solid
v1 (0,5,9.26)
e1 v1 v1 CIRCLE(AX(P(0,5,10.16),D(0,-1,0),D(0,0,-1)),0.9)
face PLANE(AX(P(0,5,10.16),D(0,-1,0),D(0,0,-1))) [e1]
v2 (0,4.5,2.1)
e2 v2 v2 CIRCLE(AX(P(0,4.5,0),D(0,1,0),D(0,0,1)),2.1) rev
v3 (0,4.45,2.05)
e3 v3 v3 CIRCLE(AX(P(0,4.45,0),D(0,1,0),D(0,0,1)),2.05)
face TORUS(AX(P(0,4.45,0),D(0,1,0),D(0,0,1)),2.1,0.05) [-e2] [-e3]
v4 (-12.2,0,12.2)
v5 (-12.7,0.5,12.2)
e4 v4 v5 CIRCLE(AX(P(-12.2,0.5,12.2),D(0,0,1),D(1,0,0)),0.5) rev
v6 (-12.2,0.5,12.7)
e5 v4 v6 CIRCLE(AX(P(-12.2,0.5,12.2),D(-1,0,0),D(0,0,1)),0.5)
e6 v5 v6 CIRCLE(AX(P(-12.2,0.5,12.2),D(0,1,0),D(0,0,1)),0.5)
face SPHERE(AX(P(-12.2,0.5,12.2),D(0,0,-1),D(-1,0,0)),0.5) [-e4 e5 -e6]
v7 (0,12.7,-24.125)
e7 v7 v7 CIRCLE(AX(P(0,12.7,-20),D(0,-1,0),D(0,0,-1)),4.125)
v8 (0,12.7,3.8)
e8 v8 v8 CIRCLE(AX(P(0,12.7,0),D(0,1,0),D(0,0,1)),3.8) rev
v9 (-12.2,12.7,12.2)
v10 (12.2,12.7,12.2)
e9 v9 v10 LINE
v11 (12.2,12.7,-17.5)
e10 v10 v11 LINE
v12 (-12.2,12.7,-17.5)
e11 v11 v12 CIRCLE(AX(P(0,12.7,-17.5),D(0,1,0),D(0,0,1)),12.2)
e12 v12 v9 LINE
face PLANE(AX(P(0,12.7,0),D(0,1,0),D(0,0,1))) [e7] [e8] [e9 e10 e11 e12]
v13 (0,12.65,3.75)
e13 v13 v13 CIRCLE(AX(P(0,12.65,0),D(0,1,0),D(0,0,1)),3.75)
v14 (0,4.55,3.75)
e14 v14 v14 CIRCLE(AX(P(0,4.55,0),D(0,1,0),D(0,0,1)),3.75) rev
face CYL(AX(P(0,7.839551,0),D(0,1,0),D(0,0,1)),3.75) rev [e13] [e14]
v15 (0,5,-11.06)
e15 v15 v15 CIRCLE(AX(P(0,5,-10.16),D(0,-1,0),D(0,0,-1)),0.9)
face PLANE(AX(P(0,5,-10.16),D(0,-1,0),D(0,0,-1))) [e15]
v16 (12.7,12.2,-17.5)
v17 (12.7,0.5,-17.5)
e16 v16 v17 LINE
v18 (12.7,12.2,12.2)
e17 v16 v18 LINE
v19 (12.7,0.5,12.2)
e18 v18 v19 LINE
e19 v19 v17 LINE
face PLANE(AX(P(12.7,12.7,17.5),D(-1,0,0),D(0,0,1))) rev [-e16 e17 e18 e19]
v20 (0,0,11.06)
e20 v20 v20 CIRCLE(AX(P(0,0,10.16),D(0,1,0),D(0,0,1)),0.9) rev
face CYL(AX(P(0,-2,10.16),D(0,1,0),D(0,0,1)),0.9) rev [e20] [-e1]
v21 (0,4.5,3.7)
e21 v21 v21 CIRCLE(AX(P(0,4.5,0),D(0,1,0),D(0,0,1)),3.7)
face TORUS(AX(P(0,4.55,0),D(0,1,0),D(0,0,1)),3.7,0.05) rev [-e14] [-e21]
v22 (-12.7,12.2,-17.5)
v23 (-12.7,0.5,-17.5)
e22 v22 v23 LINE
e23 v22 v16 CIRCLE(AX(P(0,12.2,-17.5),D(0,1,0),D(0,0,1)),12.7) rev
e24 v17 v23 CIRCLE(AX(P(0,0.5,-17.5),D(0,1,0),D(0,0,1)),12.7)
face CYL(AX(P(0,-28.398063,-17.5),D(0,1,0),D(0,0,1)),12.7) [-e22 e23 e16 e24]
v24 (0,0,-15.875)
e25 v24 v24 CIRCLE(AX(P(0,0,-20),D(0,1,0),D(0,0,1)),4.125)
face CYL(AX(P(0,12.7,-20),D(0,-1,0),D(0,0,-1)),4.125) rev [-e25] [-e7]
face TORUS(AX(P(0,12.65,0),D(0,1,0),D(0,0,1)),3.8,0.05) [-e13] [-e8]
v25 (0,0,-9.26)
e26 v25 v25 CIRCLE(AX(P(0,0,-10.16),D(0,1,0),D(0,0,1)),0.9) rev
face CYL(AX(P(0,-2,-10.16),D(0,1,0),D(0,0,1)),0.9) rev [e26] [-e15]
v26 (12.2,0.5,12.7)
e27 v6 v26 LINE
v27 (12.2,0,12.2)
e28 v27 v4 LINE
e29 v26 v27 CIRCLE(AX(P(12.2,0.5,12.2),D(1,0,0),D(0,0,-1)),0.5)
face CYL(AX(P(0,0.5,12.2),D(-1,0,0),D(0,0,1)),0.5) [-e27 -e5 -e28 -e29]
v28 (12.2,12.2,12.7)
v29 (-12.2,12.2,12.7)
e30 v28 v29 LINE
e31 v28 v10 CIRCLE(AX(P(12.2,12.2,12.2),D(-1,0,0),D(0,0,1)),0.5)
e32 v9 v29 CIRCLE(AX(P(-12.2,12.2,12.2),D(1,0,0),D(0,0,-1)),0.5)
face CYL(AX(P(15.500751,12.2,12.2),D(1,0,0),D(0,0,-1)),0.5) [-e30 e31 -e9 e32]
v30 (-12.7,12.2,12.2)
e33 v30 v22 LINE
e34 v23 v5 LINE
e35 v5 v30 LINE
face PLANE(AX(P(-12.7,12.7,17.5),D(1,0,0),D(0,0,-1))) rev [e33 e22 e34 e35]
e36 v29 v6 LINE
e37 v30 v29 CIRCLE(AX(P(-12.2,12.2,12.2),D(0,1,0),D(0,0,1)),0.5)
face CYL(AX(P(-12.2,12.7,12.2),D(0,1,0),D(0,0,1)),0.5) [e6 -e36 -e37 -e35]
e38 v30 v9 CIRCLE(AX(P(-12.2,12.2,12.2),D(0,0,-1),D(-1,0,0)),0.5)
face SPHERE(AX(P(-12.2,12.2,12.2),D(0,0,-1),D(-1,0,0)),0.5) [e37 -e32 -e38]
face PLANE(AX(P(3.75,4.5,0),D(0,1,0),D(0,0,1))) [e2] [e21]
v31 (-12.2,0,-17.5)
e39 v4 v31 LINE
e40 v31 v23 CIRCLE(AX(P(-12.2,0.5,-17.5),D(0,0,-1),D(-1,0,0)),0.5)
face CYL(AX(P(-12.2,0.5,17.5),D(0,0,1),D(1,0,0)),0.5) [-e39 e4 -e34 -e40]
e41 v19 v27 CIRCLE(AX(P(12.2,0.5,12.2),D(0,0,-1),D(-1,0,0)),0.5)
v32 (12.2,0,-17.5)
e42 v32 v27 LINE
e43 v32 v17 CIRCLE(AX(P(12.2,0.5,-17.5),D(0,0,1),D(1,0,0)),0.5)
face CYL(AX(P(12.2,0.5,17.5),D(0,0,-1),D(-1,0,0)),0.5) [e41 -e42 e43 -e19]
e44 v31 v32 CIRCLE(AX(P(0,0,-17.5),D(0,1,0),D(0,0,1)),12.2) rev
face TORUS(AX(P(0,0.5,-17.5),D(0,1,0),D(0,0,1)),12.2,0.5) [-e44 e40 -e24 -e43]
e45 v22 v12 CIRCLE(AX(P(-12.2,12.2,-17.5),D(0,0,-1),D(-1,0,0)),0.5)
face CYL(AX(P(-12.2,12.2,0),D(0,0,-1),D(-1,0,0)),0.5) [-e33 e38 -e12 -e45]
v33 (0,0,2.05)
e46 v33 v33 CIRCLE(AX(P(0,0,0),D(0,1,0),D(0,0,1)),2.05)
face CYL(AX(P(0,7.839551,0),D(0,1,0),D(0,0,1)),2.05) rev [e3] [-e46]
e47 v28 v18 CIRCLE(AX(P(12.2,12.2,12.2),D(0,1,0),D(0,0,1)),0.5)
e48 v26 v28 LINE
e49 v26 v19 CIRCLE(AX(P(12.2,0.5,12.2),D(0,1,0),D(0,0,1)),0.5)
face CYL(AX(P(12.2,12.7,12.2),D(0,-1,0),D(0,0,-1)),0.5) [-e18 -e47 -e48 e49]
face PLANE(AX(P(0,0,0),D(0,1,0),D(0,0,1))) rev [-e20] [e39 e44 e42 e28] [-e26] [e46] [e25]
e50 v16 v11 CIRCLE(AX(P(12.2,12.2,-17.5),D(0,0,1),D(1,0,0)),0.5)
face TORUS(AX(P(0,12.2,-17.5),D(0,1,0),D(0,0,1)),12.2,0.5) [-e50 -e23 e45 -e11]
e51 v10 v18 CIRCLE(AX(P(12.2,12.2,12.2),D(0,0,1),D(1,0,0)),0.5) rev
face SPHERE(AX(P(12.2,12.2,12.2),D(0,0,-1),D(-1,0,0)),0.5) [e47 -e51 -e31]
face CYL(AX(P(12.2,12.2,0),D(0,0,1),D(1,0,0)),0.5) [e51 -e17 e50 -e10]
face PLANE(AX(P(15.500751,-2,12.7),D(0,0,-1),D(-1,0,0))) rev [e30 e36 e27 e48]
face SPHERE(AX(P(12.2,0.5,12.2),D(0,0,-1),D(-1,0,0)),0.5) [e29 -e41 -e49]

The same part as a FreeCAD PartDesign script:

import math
import FreeCAD as App
import Part
import Sketcher


def edges_at(feature, points):
    """Names of the edges that pass closest to the given points."""
    edges = feature.Shape.Edges
    near = lambda p: min(range(len(edges)), key=lambda i: edges[i].distToShape(Part.Vertex(*p))[0])
    return sorted({f"Edge{near(p) + 1}" for p in points})

doc = App.newDocument("Part")
params = doc.addObject("Spreadsheet::Sheet", "Params")
for row, (alias, value) in enumerate([
    ("sketch1_height", "35 mm"),
    ("sketch1_width", "25.4 mm"),
    ("pad1_length", "12.7 mm"),
    ("sketch2_width", "1.7 mm"),
    ("sketch2_height", "8.2 mm"),
    ("sketch2_height2", "12.7 mm"),
    ("sketch2_width2", "3.75 mm"),
    ("groove_angle", "360 deg"),
    ("fillet_radius", "0.05 mm"),
    ("sketch3_diameter", "1.55 mm"),
    ("pad2_length", "2 mm"),
    ("fillet2_radius", "0.1 mm"),
    ("sketch4_radius", "12.7 mm"),
    ("pad3_length", "12.7 mm"),
    ("fillet3_radius", "0.5 mm"),
    ("sketch5_height", "4.8 mm"),
    ("sketch6_diameter", "8.25 mm"),
    ("sketch7_diameter", "1.8 mm"),
    ("pocket3_length", "3 mm"),
    ("pocket3_length2", "5 mm"),
    ("fillet4_radius", "0.5 mm"),
], start=1):
    params.set(f"A{row}", alias)
    params.set(f"B{row}", "=" + value)
    params.setAlias(f"B{row}", alias)

body = doc.addObject("PartDesign::Body", "Body")

# Sketch on XZ plane
sketch1 = doc.addObject("Sketcher::SketchObject", "Sketch")
body.addObject(sketch1)
sketch1.AttachmentSupport = (doc.XZ_Plane, [""])
sketch1.MapMode = "FlatFace"
sketch1.addGeometry(Part.LineSegment(App.Vector(-12.7, -17.5, 0), App.Vector(-12.7, 17.5, 0)), False)
sketch1.addGeometry(Part.LineSegment(App.Vector(-12.7, 17.5, 0), App.Vector(12.7, 17.5, 0)), False)
sketch1.addGeometry(Part.LineSegment(App.Vector(12.7, 17.5, 0), App.Vector(12.7, -17.5, 0)), False)
sketch1.addGeometry(Part.LineSegment(App.Vector(12.7, -17.5, 0), App.Vector(-12.7, -17.5, 0)), False)
sketch1.addConstraint(Sketcher.Constraint("Coincident", 0, 2, 1, 1))
sketch1.addConstraint(Sketcher.Constraint("Coincident", 1, 2, 2, 1))
sketch1.addConstraint(Sketcher.Constraint("Coincident", 2, 2, 3, 1))
sketch1.addConstraint(Sketcher.Constraint("Coincident", 3, 2, 0, 1))
sketch1.addConstraint(Sketcher.Constraint("Vertical", 0))
sketch1.addConstraint(Sketcher.Constraint("Horizontal", 1))
sketch1.addConstraint(Sketcher.Constraint("Vertical", 2))
sketch1.addConstraint(Sketcher.Constraint("Horizontal", 3))
sketch1.addConstraint(Sketcher.Constraint("Symmetric", 0, 2, 2, 2, -1, 1))
sketch1.addConstraint(Sketcher.Constraint("DistanceY", 0, 1, 0, 2, 35.0))
sketch1.addConstraint(Sketcher.Constraint("DistanceX", 1, 1, 1, 2, 25.4))
sketch1.setExpression("Constraints[9]", "Params.sketch1_height")
sketch1.setExpression("Constraints[10]", "Params.sketch1_width")
pad1 = doc.addObject("PartDesign::Pad", "Pad")
body.addObject(pad1)
pad1.Profile = sketch1
pad1.setExpression("Length", "Params.pad1_length")
pad1.Reversed = True

# Sketch on XY plane
sketch2 = doc.addObject("Sketcher::SketchObject", "Sketch001")
body.addObject(sketch2)
sketch2.AttachmentSupport = (doc.XY_Plane, [""])
sketch2.MapMode = "FlatFace"
sketch2.addGeometry(Part.LineSegment(App.Vector(3.75, 4.5, 0), App.Vector(3.75, 12.7, 0)), False)
sketch2.addGeometry(Part.LineSegment(App.Vector(3.75, 12.7, 0), App.Vector(0, 12.7, 0)), False)
sketch2.addGeometry(Part.LineSegment(App.Vector(0, 12.7, 0), App.Vector(0, 0, 0)), False)
sketch2.addGeometry(Part.LineSegment(App.Vector(0, 0, 0), App.Vector(2.05, 0, 0)), False)
sketch2.addGeometry(Part.LineSegment(App.Vector(2.05, 0, 0), App.Vector(2.05, 4.5, 0)), False)
sketch2.addGeometry(Part.LineSegment(App.Vector(2.05, 4.5, 0), App.Vector(3.75, 4.5, 0)), False)
sketch2.addConstraint(Sketcher.Constraint("Coincident", 0, 2, 1, 1))
sketch2.addConstraint(Sketcher.Constraint("Coincident", 1, 2, 2, 1))
sketch2.addConstraint(Sketcher.Constraint("Coincident", 2, 2, 3, 1))
sketch2.addConstraint(Sketcher.Constraint("Coincident", 3, 2, 4, 1))
sketch2.addConstraint(Sketcher.Constraint("Coincident", 4, 2, 5, 1))
sketch2.addConstraint(Sketcher.Constraint("Coincident", 5, 2, 0, 1))
sketch2.addConstraint(Sketcher.Constraint("Vertical", 0))
sketch2.addConstraint(Sketcher.Constraint("Horizontal", 1))
sketch2.addConstraint(Sketcher.Constraint("Vertical", 2))
sketch2.addConstraint(Sketcher.Constraint("Horizontal", 3))
sketch2.addConstraint(Sketcher.Constraint("Vertical", 4))
sketch2.addConstraint(Sketcher.Constraint("Horizontal", 5))
sketch2.addConstraint(Sketcher.Constraint("Coincident", 2, 2, -1, 1))
sketch2.addConstraint(Sketcher.Constraint("DistanceX", 5, 1, 5, 2, 1.7))
sketch2.addConstraint(Sketcher.Constraint("DistanceY", 0, 1, 0, 2, 8.2))
sketch2.addConstraint(Sketcher.Constraint("DistanceY", 2, 2, 2, 1, 12.7))
sketch2.addConstraint(Sketcher.Constraint("DistanceX", 1, 2, 1, 1, 3.75))
sketch2.setExpression("Constraints[13]", "Params.sketch2_width")
sketch2.setExpression("Constraints[14]", "Params.sketch2_height")
sketch2.setExpression("Constraints[15]", "Params.sketch2_height2")
sketch2.setExpression("Constraints[16]", "Params.sketch2_width2")
groove = doc.addObject("PartDesign::Groove", "Groove")
body.addObject(groove)
groove.Profile = sketch2
groove.ReferenceAxis = (sketch2, ["V_Axis"])
groove.setExpression("Angle", "Params.groove_angle")
doc.recompute()

fillet = doc.addObject("PartDesign::Fillet", "Fillet")
body.addObject(fillet)
fillet.Base = (groove, edges_at(groove, [(-3.75, 12.7, 0), (-3.75, 4.5, 0), (-2.05, 4.5, 0)]))
fillet.setExpression("Radius", "Params.fillet_radius")

# Sketch on XZ plane
sketch3 = doc.addObject("Sketcher::SketchObject", "Sketch002")
body.addObject(sketch3)
sketch3.AttachmentSupport = (doc.XZ_Plane, [""])
sketch3.MapMode = "FlatFace"
sketch3.addGeometry(Part.Circle(App.Vector(0, 10.16, 0), App.Vector(0, 0, 1), 0.775), False)
sketch3.addGeometry(Part.Circle(App.Vector(0, -10.16, 0), App.Vector(0, 0, 1), 0.775), False)
sketch3.addConstraint(Sketcher.Constraint("Equal", 0, 1))
sketch3.addConstraint(Sketcher.Constraint("Symmetric", 0, 3, 1, 3, -1, 1))
sketch3.addConstraint(Sketcher.Constraint("PointOnObject", 0, 3, -2))
sketch3.addConstraint(Sketcher.Constraint("Diameter", 0, 1.55))
sketch3.addConstraint(Sketcher.Constraint("DistanceY", -1, 1, 0, 3, 10.16))
sketch3.setExpression("Constraints[3]", "Params.sketch3_diameter")
pad2 = doc.addObject("PartDesign::Pad", "Pad001")
body.addObject(pad2)
pad2.Profile = sketch3
pad2.setExpression("Length", "Params.pad2_length")
doc.recompute()

fillet2 = doc.addObject("PartDesign::Fillet", "Fillet001")
body.addObject(fillet2)
fillet2.Base = (pad2, edges_at(pad2, [(-0.775, -2, 10.16), (-0.775, -2, -10.16)]))
fillet2.setExpression("Radius", "Params.fillet2_radius")

# Sketch on XZ plane
sketch4 = doc.addObject("Sketcher::SketchObject", "Sketch003")
body.addObject(sketch4)
sketch4.AttachmentSupport = (doc.XZ_Plane, [""])
sketch4.MapMode = "FlatFace"
sketch4.AttachmentOffset = App.Placement(App.Vector(0, 0, -12.7), App.Rotation())
sketch4.addGeometry(Part.LineSegment(App.Vector(-12.7, -17.5, 0), App.Vector(12.7, -17.5, 0)), False)
sketch4.addGeometry(Part.ArcOfCircle(Part.Circle(App.Vector(0, -17.5, 0), App.Vector(0, 0, 1), 12.7), math.radians(180), math.radians(360)), False)
sketch4.addConstraint(Sketcher.Constraint("Coincident", 0, 1, 1, 1))
sketch4.addConstraint(Sketcher.Constraint("Coincident", 1, 2, 0, 2))
sketch4.addConstraint(Sketcher.Constraint("Horizontal", 0))
sketch4.addConstraint(Sketcher.Constraint("PointOnObject", 1, 3, -2))
sketch4.addConstraint(Sketcher.Constraint("Horizontal", 1, 3, 0, 1))
sketch4.addConstraint(Sketcher.Constraint("Radius", 1, 12.7))
sketch4.addConstraint(Sketcher.Constraint("DistanceY", 1, 3, -1, 1, 17.5))
sketch4.setExpression("Constraints[5]", "Params.sketch4_radius")
pad3 = doc.addObject("PartDesign::Pad", "Pad002")
body.addObject(pad3)
pad3.Profile = sketch4
pad3.setExpression("Length", "Params.pad3_length")
doc.recompute()

fillet3 = doc.addObject("PartDesign::Fillet", "Fillet002")
body.addObject(fillet3)
fillet3.Base = (pad3, edges_at(pad3, [
    (12.7, 12.7, 0),
    (-12.7, 12.7, 0),
    (0, 12.7, -30.2),
    (0, 0, -30.2),
    (12.7, 0, 0),
    (0, 0, 17.5),
    (-12.7, 0, 0),
]))
fillet3.setExpression("Radius", "Params.fillet3_radius")

# Sketch on XZ plane
sketch5 = doc.addObject("Sketcher::SketchObject", "Sketch004")
body.addObject(sketch5)
sketch5.AttachmentSupport = (doc.XZ_Plane, [""])
sketch5.MapMode = "FlatFace"
sketch5.addGeometry(Part.LineSegment(App.Vector(-13.452488, 12.7, 0), App.Vector(-13.452488, 17.5, 0)), False)
sketch5.addGeometry(Part.LineSegment(App.Vector(-13.452488, 17.5, 0), App.Vector(15.500751, 17.5, 0)), False)
sketch5.addGeometry(Part.LineSegment(App.Vector(15.500751, 17.5, 0), App.Vector(15.500751, 12.7, 0)), False)
sketch5.addGeometry(Part.LineSegment(App.Vector(15.500751, 12.7, 0), App.Vector(-13.452488, 12.7, 0)), False)
sketch5.addConstraint(Sketcher.Constraint("Coincident", 0, 2, 1, 1))
sketch5.addConstraint(Sketcher.Constraint("Coincident", 1, 2, 2, 1))
sketch5.addConstraint(Sketcher.Constraint("Coincident", 2, 2, 3, 1))
sketch5.addConstraint(Sketcher.Constraint("Coincident", 3, 2, 0, 1))
sketch5.addConstraint(Sketcher.Constraint("Vertical", 0))
sketch5.addConstraint(Sketcher.Constraint("Horizontal", 1))
sketch5.addConstraint(Sketcher.Constraint("Vertical", 2))
sketch5.addConstraint(Sketcher.Constraint("Horizontal", 3))
sketch5.addConstraint(Sketcher.Constraint("DistanceY", 0, 1, 0, 2, 4.8))
sketch5.addConstraint(Sketcher.Constraint("DistanceY", -1, 1, 0, 2, 17.5))
sketch5.addConstraint(Sketcher.Constraint("DistanceX", 1, 1, 1, 2, 28.95324))
sketch5.addConstraint(Sketcher.Constraint("DistanceX", 0, 2, -1, 1, 13.452488))
sketch5.setExpression("Constraints[8]", "Params.sketch5_height")
pocket1 = doc.addObject("PartDesign::Pocket", "Pocket")
body.addObject(pocket1)
pocket1.Profile = sketch5
pocket1.Type = "ThroughAll"
pocket1.Midplane = True

# Sketch on XZ plane
sketch6 = doc.addObject("Sketcher::SketchObject", "Sketch005")
body.addObject(sketch6)
sketch6.AttachmentSupport = (doc.XZ_Plane, [""])
sketch6.MapMode = "FlatFace"
sketch6.addGeometry(Part.Circle(App.Vector(0, -20, 0), App.Vector(0, 0, 1), 4.125), False)
sketch6.addConstraint(Sketcher.Constraint("PointOnObject", 0, 3, -2))
sketch6.addConstraint(Sketcher.Constraint("Diameter", 0, 8.25))
sketch6.addConstraint(Sketcher.Constraint("DistanceY", 0, 3, -1, 1, 20.0))
sketch6.setExpression("Constraints[1]", "Params.sketch6_diameter")
pocket2 = doc.addObject("PartDesign::Pocket", "Pocket001")
body.addObject(pocket2)
pocket2.Profile = sketch6
pocket2.Type = "ThroughAll"
pocket2.Midplane = True

# Sketch on XZ plane
sketch7 = doc.addObject("Sketcher::SketchObject", "Sketch006")
body.addObject(sketch7)
sketch7.AttachmentSupport = (doc.XZ_Plane, [""])
sketch7.MapMode = "FlatFace"
sketch7.addGeometry(Part.Circle(App.Vector(0, -10.16, 0), App.Vector(0, 0, 1), 0.9), False)
sketch7.addGeometry(Part.Circle(App.Vector(0, 10.16, 0), App.Vector(0, 0, 1), 0.9), False)
sketch7.addConstraint(Sketcher.Constraint("Equal", 0, 1))
sketch7.addConstraint(Sketcher.Constraint("Symmetric", 0, 3, 1, 3, -1, 1))
sketch7.addConstraint(Sketcher.Constraint("PointOnObject", 0, 3, -2))
sketch7.addConstraint(Sketcher.Constraint("Diameter", 0, 1.8))
sketch7.addConstraint(Sketcher.Constraint("DistanceY", 0, 3, -1, 1, 10.16))
sketch7.setExpression("Constraints[3]", "Params.sketch7_diameter")
pocket3 = doc.addObject("PartDesign::Pocket", "Pocket002")
body.addObject(pocket3)
pocket3.Profile = sketch7
pocket3.Type = "TwoLengths"
pocket3.setExpression("Length", "Params.pocket3_length")
pocket3.setExpression("Length2", "Params.pocket3_length2")
pocket3.Reversed = True
doc.recompute()

fillet4 = doc.addObject("PartDesign::Fillet", "Fillet003")
body.addObject(fillet4)
fillet4.Base = (pocket3, edges_at(pocket3, [
    (12.554, 0.146, 12.7),
    (-12.554, 12.554, 12.7),
    (-12.554, 0.146, 12.7),
    (12.554, 12.554, 12.7),
    (12.7, 6.35, 12.7),
    (0, 0, 12.7),
    (-12.7, 6.35, 12.7),
    (0, 12.7, 12.7),
]))
fillet4.setExpression("Radius", "Params.fillet4_radius")

doc.recompute()
